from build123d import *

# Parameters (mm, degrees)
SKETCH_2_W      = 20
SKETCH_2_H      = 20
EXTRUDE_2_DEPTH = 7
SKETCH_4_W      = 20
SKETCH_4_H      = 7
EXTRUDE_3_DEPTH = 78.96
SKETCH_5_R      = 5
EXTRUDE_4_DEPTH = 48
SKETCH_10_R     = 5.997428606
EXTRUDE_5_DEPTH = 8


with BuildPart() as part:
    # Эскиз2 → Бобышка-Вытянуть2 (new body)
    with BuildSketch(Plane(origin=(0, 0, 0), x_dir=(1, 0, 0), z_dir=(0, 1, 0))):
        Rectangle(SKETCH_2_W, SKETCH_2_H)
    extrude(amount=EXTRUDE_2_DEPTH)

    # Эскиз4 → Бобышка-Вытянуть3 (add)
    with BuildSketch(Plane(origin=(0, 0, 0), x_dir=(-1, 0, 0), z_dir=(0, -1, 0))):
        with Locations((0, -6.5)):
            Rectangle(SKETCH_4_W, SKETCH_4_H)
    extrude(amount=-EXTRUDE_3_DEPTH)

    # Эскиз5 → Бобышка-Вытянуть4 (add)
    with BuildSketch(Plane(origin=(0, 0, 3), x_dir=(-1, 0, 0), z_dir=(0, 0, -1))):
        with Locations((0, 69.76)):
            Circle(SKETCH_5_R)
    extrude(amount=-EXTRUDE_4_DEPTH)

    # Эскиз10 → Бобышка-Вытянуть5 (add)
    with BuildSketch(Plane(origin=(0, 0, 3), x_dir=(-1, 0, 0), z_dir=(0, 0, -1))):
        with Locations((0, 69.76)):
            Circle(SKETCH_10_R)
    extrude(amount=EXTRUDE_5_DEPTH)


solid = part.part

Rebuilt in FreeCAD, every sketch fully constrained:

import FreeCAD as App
import Part
import Sketcher
from FreeCAD import Vector
Q = App.Units.Quantity


def add_polygon(sketch, points):
    """Adds a closed chain of lines whose ends are joined by coincident constraints."""
    first, n = sketch.GeometryCount, len(points)
    for a, b in zip(points, points[1:] + points[:1]):
        sketch.addGeometry(Part.LineSegment(App.Vector(*a, 0), App.Vector(*b, 0)), False)
    for i in range(n):
        sketch.addConstraint(Sketcher.Constraint("Coincident", first + i, 2, first + (i + 1) % n, 1))

doc = App.newDocument("Part")
params = doc.addObject("Spreadsheet::Sheet", "Params")
for row, (alias, value) in enumerate([
    ("sketch1_width", "20 mm"),
    ("pad1_length", "7 mm"),
    ("sketch2_width", "20 mm"),
    ("sketch2_height", "7 mm"),
    ("pad2_length", "78.96 mm"),
    ("sketch3_diameter", "10 mm"),
    ("pad3_length", "48 mm"),
    ("pad4_length", "8 mm"),
], start=1):
    params.set(f"A{row}", alias)
    params.set(f"B{row}", "=" + value)
    params.setAlias(f"B{row}", alias)

body = doc.addObject("PartDesign::Body", "Body")

# Sketch on XZ plane
sketch1 = body.newObject("Sketcher::SketchObject", "Sketch")
sketch1.AttachmentSupport = (doc.getObject("XZ_Plane"), [""])
sketch1.MapMode = "FlatFace"
add_polygon(sketch1, [(-10, -10), (-10, 10), (10, 10), (10, -10)])  # lines 0-3
sketch1.addConstraint(Sketcher.Constraint("Vertical", 0))
sketch1.addConstraint(Sketcher.Constraint("Horizontal", 1))
sketch1.addConstraint(Sketcher.Constraint("Vertical", 2))
sketch1.addConstraint(Sketcher.Constraint("Horizontal", 3))
sketch1.addConstraint(Sketcher.Constraint("Symmetric", 0, 2, 2, 2, -1, 1))
sketch1.addConstraint(Sketcher.Constraint("Equal", 3, 0))
sketch1.addConstraint(Sketcher.Constraint("DistanceX", 1, 1, 1, 2, Q("20 mm")))
sketch1.setExpression("Constraints[10]", "Params.sketch1_width")
pad1 = body.newObject("PartDesign::Pad", "Pad")
pad1.Profile = sketch1
pad1.setExpression("Length", "Params.pad1_length")
pad1.Reversed = True

# Sketch on XZ plane
sketch2 = body.newObject("Sketcher::SketchObject", "Sketch001")
sketch2.AttachmentSupport = (doc.getObject("XZ_Plane"), [""])
sketch2.MapMode = "FlatFace"
add_polygon(sketch2, [(10, 3), (10, 10), (-10, 10), (-10, 3)])  # lines 0-3
sketch2.addConstraint(Sketcher.Constraint("Vertical", 0))
sketch2.addConstraint(Sketcher.Constraint("Horizontal", 1))
sketch2.addConstraint(Sketcher.Constraint("Vertical", 2))
sketch2.addConstraint(Sketcher.Constraint("Horizontal", 3))
sketch2.addConstraint(Sketcher.Constraint("DistanceX", 1, 2, 1, 1, Q("20 mm")))
sketch2.addConstraint(Sketcher.Constraint("DistanceY", 0, 1, 0, 2, Q("7 mm")))
sketch2.addConstraint(Sketcher.Constraint("DistanceX", -1, 1, 0, 2, Q("10 mm")))
sketch2.addConstraint(Sketcher.Constraint("DistanceY", -1, 1, 0, 2, Q("10 mm")))
sketch2.setExpression("Constraints[8]", "Params.sketch2_width")
sketch2.setExpression("Constraints[9]", "Params.sketch2_height")
pad2 = body.newObject("PartDesign::Pad", "Pad001")
pad2.Profile = sketch2
pad2.setExpression("Length", "Params.pad2_length")
pad2.Reversed = True

# Sketch on XY plane
sketch3 = body.newObject("Sketcher::SketchObject", "Sketch002")
sketch3.AttachmentSupport = (doc.getObject("XY_Plane"), [""])
sketch3.MapMode = "FlatFace"
sketch3.AttachmentOffset = App.Placement(Vector(0, 0, 3), App.Rotation())
sketch3.addGeometry(Part.Circle(Vector(0, 70, 0), Vector(0, 0, 1), 5), False)
sketch3.addConstraint(Sketcher.Constraint("PointOnObject", 0, 3, -2))
sketch3.addConstraint(Sketcher.Constraint("Diameter", 0, Q("10 mm")))
sketch3.addConstraint(Sketcher.Constraint("DistanceY", -1, 1, 0, 3, Q("69.76 mm")))
sketch3.setExpression("Constraints[1]", "Params.sketch3_diameter")
pad3 = body.newObject("PartDesign::Pad", "Pad002")
pad3.Profile = sketch3
pad3.setExpression("Length", "Params.pad3_length")

# Sketch on XY plane
sketch4 = body.newObject("Sketcher::SketchObject", "Sketch003")
sketch4.AttachmentSupport = (doc.getObject("XY_Plane"), [""])
sketch4.MapMode = "FlatFace"
sketch4.AttachmentOffset = App.Placement(Vector(0, 0, 3), App.Rotation())
sketch4.addGeometry(Part.Circle(Vector(0, 70, 0), Vector(0, 0, 1), 6), False)
sketch4.addConstraint(Sketcher.Constraint("PointOnObject", 0, 3, -2))
sketch4.addConstraint(Sketcher.Constraint("DistanceY", -1, 1, 0, 3, Q("69.76 mm")))
sketch4.addConstraint(Sketcher.Constraint("Diameter", 0, Q("11.994857 mm")))
pad4 = body.newObject("PartDesign::Pad", "Pad003")
pad4.Profile = sketch4
pad4.setExpression("Length", "Params.pad4_length")
pad4.Reversed = True

doc.recompute()
